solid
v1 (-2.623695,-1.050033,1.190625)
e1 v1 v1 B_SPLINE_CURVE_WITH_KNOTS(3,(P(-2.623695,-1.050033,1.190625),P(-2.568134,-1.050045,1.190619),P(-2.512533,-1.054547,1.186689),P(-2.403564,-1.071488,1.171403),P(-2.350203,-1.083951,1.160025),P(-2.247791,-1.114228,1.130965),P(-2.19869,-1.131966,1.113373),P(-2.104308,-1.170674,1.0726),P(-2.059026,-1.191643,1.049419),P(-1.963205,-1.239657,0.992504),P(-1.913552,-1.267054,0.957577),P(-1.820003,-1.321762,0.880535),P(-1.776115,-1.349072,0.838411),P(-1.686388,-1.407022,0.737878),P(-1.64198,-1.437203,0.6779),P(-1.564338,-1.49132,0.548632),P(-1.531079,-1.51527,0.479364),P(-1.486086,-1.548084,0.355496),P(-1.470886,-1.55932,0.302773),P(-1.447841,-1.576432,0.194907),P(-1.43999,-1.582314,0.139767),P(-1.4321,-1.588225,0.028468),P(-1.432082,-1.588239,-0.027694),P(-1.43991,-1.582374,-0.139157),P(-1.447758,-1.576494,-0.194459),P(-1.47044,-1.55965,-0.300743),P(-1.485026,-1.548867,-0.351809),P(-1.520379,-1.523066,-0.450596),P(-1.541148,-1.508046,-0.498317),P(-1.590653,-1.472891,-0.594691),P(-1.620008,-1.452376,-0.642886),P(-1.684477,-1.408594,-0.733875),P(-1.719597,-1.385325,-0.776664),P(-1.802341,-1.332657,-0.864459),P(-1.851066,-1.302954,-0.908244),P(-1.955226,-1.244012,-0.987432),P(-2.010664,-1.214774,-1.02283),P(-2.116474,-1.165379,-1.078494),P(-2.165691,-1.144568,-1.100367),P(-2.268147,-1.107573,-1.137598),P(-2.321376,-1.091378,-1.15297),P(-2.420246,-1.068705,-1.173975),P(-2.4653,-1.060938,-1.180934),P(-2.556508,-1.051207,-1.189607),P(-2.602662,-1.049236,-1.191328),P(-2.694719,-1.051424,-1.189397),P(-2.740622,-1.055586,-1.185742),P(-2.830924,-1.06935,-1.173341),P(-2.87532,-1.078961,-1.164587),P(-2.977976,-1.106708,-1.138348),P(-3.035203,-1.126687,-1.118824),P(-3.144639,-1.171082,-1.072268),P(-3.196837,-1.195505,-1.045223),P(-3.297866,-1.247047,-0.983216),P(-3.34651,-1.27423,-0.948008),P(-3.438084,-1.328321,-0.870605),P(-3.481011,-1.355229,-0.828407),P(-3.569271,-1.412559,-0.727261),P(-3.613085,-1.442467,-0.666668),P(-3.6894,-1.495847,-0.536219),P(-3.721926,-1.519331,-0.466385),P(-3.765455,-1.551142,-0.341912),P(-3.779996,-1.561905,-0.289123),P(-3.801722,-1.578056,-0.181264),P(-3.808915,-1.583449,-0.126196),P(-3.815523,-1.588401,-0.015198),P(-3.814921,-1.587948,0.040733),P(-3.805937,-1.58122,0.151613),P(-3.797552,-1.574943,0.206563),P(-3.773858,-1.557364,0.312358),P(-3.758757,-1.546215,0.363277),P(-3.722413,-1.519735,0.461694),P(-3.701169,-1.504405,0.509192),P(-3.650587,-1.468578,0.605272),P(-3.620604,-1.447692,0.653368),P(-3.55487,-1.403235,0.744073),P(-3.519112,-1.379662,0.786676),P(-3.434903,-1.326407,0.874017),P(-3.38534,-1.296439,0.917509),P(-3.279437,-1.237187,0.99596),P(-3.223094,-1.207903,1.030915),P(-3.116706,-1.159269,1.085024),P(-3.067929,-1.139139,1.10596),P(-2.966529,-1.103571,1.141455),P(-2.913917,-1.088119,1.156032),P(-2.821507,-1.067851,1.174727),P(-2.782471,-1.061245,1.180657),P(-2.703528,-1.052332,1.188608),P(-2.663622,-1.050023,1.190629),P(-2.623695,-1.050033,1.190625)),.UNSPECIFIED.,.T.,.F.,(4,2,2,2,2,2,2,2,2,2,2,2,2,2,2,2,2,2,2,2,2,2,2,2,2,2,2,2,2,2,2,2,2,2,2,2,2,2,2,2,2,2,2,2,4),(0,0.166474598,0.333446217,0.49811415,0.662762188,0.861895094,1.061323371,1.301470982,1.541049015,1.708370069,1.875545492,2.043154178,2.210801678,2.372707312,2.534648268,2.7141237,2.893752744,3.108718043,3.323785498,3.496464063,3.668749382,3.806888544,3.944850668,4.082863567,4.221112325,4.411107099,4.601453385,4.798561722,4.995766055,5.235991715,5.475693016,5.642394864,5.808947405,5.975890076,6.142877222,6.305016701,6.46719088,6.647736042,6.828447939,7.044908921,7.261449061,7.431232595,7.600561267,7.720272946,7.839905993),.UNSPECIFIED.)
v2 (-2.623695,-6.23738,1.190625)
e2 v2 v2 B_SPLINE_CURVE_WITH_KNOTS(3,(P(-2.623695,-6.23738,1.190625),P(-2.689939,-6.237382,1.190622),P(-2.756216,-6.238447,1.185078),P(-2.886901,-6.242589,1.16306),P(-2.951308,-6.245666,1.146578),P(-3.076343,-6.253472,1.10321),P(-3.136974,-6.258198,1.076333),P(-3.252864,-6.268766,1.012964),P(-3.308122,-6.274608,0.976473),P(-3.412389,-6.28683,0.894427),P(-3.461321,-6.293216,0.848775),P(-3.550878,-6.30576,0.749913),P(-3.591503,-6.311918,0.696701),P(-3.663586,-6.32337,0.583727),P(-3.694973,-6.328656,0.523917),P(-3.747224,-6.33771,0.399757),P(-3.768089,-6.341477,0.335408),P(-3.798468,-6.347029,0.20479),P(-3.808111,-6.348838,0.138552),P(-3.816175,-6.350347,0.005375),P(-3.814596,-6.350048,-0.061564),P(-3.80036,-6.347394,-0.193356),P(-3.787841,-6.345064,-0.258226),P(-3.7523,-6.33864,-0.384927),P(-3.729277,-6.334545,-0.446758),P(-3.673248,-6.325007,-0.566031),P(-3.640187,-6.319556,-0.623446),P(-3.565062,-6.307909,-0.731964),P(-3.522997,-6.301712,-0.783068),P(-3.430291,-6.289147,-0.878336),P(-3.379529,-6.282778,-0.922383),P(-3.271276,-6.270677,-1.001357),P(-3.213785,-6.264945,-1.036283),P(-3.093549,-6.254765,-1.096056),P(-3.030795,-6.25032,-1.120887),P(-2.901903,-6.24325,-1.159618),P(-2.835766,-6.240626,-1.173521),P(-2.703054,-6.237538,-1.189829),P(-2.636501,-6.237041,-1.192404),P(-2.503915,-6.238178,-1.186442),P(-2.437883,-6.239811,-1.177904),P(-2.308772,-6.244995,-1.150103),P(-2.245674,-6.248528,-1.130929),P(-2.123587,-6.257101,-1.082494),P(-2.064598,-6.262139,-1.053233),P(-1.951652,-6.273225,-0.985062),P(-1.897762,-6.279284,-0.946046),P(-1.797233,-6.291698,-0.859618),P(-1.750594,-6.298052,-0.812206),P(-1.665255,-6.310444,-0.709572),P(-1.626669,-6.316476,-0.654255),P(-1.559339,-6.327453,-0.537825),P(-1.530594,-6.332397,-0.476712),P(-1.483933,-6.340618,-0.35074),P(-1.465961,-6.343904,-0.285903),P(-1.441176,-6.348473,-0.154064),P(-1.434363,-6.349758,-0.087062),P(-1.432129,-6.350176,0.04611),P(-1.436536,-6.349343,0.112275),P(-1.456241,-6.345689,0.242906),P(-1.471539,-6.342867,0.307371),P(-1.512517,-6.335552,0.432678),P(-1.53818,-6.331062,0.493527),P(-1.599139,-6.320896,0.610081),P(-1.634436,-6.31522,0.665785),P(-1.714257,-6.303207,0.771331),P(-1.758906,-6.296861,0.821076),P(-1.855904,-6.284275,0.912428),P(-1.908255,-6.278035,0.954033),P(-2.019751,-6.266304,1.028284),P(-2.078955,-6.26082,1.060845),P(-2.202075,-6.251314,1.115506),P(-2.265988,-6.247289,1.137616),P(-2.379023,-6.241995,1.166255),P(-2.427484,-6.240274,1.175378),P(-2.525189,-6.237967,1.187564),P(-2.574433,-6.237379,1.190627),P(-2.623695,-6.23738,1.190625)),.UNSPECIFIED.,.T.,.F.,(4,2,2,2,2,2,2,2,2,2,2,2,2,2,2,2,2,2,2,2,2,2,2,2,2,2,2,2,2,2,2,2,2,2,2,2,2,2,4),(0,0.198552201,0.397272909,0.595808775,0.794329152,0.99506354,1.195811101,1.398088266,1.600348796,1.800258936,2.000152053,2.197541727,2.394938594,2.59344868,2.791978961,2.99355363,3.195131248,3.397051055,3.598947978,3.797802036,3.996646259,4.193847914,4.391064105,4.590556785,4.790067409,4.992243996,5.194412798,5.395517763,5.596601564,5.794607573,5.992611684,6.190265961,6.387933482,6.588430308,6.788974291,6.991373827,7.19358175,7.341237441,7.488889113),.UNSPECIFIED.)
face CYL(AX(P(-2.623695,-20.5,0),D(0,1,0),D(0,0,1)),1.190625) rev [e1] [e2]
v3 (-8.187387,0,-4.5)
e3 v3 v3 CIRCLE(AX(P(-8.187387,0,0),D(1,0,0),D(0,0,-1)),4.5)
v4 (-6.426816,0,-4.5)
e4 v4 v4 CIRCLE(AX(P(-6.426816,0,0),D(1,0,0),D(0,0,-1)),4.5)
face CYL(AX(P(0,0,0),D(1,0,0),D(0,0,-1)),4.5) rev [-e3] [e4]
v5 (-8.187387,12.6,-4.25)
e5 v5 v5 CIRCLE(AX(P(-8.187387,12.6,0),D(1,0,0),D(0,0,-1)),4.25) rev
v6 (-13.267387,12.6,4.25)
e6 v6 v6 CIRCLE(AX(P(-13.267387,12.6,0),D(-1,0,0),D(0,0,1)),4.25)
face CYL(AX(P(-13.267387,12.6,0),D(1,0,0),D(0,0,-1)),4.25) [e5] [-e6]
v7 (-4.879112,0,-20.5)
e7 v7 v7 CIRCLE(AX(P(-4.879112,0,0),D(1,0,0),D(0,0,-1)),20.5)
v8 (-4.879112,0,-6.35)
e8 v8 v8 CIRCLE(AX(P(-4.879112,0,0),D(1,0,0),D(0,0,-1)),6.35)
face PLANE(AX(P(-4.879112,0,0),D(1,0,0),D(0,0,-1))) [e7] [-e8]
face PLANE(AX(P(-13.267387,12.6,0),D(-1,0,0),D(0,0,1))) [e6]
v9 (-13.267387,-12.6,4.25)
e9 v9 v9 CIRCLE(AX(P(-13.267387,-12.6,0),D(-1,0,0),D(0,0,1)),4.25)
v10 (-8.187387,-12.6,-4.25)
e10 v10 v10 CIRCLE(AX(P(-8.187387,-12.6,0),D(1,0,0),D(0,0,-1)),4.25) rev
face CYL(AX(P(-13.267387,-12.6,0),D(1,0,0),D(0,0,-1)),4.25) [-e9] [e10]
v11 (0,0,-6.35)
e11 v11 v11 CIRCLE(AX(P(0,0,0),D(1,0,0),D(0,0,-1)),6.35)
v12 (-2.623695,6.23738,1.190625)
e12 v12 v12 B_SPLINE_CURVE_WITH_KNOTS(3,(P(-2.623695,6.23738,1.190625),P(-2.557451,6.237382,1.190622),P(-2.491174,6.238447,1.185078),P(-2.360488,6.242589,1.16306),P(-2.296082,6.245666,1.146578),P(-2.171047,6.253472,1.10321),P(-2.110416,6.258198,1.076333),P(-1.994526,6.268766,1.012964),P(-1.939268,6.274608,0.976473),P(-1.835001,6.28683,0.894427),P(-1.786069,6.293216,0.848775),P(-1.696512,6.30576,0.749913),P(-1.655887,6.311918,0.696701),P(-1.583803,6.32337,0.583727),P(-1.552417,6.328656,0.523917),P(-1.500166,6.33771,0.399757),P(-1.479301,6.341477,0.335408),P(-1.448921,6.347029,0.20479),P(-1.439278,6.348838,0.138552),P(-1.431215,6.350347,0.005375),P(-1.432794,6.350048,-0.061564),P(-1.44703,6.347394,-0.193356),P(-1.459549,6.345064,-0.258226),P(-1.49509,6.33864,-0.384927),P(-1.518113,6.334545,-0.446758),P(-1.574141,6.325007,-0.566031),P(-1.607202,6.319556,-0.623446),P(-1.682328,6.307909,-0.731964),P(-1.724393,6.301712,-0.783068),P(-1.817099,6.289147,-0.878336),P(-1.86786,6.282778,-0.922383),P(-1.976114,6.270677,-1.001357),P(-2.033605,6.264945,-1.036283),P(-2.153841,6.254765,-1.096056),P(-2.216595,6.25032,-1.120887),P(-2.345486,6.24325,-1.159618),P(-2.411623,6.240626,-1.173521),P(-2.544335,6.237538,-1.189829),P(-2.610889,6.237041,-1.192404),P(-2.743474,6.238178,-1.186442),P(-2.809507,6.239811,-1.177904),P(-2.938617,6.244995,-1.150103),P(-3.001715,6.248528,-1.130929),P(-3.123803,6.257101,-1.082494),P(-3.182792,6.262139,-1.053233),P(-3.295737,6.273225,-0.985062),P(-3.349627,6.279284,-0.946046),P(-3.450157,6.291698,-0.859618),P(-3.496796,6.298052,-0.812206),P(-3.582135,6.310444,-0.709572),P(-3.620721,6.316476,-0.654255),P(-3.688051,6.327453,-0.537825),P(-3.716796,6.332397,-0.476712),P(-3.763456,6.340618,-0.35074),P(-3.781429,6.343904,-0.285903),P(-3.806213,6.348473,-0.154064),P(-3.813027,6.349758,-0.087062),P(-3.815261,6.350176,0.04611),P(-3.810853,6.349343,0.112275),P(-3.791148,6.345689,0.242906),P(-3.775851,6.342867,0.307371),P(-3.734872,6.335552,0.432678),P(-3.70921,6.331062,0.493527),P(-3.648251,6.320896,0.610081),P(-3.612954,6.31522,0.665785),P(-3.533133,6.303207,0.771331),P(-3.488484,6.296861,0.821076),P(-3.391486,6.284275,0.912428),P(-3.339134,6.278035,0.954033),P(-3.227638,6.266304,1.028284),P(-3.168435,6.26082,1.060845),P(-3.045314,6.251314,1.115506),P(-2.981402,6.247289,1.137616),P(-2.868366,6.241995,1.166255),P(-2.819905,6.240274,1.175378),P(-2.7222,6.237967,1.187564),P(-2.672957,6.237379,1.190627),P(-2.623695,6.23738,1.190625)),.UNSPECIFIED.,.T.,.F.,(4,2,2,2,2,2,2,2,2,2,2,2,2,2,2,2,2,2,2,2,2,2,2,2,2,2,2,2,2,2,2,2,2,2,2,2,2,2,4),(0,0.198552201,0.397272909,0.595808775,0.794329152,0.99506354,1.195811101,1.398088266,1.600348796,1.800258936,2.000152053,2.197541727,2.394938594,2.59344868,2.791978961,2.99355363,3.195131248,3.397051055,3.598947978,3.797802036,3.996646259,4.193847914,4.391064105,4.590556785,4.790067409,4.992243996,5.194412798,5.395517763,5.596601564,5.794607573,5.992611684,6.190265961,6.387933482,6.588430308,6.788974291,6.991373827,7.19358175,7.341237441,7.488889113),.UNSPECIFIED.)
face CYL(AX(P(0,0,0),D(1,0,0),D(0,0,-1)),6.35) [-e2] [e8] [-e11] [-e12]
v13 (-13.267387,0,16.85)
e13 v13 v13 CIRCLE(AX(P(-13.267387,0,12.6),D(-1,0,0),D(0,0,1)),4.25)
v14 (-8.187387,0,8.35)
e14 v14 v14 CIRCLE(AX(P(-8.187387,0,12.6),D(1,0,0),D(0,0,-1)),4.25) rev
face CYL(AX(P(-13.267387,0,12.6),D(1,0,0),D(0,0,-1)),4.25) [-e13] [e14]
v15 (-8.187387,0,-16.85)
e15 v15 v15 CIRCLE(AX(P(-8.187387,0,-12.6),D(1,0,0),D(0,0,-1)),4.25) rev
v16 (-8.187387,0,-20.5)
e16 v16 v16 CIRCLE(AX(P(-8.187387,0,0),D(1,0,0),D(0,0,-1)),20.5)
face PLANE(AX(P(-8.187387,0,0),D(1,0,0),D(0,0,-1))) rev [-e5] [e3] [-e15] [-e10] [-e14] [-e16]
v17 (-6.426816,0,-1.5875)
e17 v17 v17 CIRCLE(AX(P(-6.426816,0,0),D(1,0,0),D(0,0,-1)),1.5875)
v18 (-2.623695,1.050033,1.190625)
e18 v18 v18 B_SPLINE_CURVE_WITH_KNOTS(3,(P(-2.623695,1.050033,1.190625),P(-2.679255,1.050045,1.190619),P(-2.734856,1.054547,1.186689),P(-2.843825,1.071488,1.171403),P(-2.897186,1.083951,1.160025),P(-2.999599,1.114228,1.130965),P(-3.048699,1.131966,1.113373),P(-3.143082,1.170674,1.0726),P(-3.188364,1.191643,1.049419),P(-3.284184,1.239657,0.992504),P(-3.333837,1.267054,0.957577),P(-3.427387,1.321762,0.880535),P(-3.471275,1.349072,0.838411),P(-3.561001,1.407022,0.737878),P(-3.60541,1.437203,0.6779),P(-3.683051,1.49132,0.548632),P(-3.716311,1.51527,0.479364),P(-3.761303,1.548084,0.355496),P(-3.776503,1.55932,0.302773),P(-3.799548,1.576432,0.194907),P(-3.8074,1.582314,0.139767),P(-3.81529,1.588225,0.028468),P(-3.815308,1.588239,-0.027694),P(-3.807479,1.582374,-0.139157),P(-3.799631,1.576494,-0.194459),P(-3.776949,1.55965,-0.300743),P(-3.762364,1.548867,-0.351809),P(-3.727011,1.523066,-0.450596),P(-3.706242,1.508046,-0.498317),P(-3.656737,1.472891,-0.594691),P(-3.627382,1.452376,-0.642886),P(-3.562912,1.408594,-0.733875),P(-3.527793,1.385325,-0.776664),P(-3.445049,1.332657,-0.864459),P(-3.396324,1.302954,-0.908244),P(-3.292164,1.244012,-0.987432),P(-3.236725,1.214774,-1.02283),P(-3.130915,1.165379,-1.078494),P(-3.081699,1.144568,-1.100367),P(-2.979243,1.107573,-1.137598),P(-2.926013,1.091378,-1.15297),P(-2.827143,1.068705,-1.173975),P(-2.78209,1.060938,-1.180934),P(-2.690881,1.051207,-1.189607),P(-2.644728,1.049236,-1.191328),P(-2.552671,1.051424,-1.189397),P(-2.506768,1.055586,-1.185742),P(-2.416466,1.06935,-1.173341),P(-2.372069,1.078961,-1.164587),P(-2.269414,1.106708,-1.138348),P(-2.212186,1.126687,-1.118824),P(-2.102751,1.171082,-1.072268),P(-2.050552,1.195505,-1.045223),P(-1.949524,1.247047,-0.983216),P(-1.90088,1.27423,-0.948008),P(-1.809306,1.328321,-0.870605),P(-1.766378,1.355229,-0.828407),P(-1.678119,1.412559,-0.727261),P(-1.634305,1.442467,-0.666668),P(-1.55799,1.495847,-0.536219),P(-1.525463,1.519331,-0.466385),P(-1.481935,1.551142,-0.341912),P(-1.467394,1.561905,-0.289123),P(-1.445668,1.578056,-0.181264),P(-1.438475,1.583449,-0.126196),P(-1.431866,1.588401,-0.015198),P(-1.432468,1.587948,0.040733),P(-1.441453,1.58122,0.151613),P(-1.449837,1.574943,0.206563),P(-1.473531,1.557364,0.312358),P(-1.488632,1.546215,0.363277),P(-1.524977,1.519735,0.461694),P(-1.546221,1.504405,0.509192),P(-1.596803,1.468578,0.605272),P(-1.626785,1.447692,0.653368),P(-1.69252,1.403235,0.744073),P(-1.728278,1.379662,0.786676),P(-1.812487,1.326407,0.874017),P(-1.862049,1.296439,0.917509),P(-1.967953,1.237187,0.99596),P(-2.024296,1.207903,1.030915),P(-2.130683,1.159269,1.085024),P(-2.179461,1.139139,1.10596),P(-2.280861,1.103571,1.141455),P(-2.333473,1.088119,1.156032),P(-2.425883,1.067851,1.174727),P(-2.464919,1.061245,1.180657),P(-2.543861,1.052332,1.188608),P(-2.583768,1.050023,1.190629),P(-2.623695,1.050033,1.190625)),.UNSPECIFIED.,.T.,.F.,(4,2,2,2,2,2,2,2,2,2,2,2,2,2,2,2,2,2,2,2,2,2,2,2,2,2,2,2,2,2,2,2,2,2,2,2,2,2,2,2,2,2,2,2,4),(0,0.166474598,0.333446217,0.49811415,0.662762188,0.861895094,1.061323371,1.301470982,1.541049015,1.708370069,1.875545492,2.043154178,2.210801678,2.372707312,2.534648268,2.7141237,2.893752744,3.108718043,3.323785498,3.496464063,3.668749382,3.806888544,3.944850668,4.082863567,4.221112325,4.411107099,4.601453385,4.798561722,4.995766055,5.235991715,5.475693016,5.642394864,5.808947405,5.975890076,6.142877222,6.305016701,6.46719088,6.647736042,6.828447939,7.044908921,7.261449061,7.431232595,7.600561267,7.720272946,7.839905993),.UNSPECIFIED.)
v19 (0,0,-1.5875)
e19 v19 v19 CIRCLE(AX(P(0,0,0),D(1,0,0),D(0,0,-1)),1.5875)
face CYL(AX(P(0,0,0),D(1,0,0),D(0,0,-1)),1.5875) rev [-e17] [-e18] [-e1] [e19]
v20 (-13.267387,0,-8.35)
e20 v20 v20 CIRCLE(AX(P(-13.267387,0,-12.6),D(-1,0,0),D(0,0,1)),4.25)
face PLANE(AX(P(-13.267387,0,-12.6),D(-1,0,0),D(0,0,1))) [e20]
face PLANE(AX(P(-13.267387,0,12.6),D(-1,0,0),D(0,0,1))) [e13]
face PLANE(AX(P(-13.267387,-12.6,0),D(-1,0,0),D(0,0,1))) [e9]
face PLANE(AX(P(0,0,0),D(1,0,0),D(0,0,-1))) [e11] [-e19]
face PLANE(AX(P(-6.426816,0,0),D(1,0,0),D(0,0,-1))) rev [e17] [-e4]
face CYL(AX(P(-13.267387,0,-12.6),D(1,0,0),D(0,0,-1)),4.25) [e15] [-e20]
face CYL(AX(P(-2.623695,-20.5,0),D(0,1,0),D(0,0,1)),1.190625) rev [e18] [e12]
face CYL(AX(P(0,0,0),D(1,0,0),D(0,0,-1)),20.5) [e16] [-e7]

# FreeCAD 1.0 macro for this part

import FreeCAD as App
import Part
import Sketcher
from FreeCAD import Vector
Q = App.Units.Quantity

doc = App.newDocument("Part")
params = doc.addObject("Spreadsheet::Sheet", "Params")
for row, (alias, value) in enumerate([
    ("sketch1_height", "0.1875 in"),
    ("revolution_angle", "360 deg"),
    ("pad1_length", "0.2 in"),
    ("sketch3_diameter", "0.09375 in"),
], start=1):
    params.set(f"A{row}", alias)
    params.set(f"B{row}", "=" + value)
    params.setAlias(f"B{row}", alias)

body = doc.addObject("PartDesign::Body", "Body")

sketch1 = body.newObject("Sketcher::SketchObject", "Sketch")
sketch1.AttachmentSupport = (doc.getObject("XY_Plane"), [""])
sketch1.MapMode = "FlatFace"
sketch1.addGeometry(Part.LineSegment(Vector(0, 1.6, 0), Vector(0, 6.3, 0)), False)
sketch1.addGeometry(Part.LineSegment(Vector(0, 6.3, 0), Vector(-4.9, 6.3, 0)), False)
sketch1.addGeometry(Part.LineSegment(Vector(-4.9, 6.3, 0), Vector(-4.9, 20.5, 0)), False)
sketch1.addGeometry(Part.LineSegment(Vector(-4.9, 20.5, 0), Vector(-8.2, 20.5, 0)), False)
sketch1.addGeometry(Part.LineSegment(Vector(-8.2, 20.5, 0), Vector(-8.2, 4.5, 0)), False)
sketch1.addGeometry(Part.LineSegment(Vector(-8.2, 4.5, 0), Vector(-6.4, 4.5, 0)), False)
sketch1.addGeometry(Part.LineSegment(Vector(-6.4, 4.5, 0), Vector(-6.4, 1.6, 0)), False)
sketch1.addGeometry(Part.LineSegment(Vector(-6.4, 1.6, 0), Vector(0, 1.6, 0)), False)
sketch1.addConstraint(Sketcher.Constraint("Coincident", 0, 2, 1, 1))
sketch1.addConstraint(Sketcher.Constraint("Coincident", 1, 2, 2, 1))
sketch1.addConstraint(Sketcher.Constraint("Coincident", 2, 2, 3, 1))
sketch1.addConstraint(Sketcher.Constraint("Coincident", 3, 2, 4, 1))
sketch1.addConstraint(Sketcher.Constraint("Coincident", 4, 2, 5, 1))
sketch1.addConstraint(Sketcher.Constraint("Coincident", 5, 2, 6, 1))
sketch1.addConstraint(Sketcher.Constraint("Coincident", 6, 2, 7, 1))
sketch1.addConstraint(Sketcher.Constraint("Coincident", 7, 2, 0, 1))
sketch1.addConstraint(Sketcher.Constraint("Vertical", 0))
sketch1.addConstraint(Sketcher.Constraint("Horizontal", 1))
sketch1.addConstraint(Sketcher.Constraint("Vertical", 2))
sketch1.addConstraint(Sketcher.Constraint("Horizontal", 3))
sketch1.addConstraint(Sketcher.Constraint("Vertical", 4))
sketch1.addConstraint(Sketcher.Constraint("Horizontal", 5))
sketch1.addConstraint(Sketcher.Constraint("Vertical", 6))
sketch1.addConstraint(Sketcher.Constraint("Horizontal", 7))
sketch1.addConstraint(Sketcher.Constraint("PointOnObject", 0, 2, -2))
sketch1.addConstraint(Sketcher.Constraint("DistanceY", 0, 1, 0, 2, Q("0.1875 in")))
sketch1.addConstraint(Sketcher.Constraint("DistanceY", -1, 1, 0, 2, Q("0.25 in")))
sketch1.addConstraint(Sketcher.Constraint("DistanceY", 2, 1, 2, 2, 14.15))
sketch1.addConstraint(Sketcher.Constraint("DistanceY", 4, 2, 4, 1, 16.0))
sketch1.addConstraint(Sketcher.Constraint("DistanceX", 1, 2, 1, 1, 4.879112))
sketch1.addConstraint(Sketcher.Constraint("DistanceX", 5, 1, 5, 2, 1.760572))
sketch1.addConstraint(Sketcher.Constraint("DistanceX", 3, 2, 3, 1, 3.308276))
sketch1.setExpression("Constraints[17]", "Params.sketch1_height")
revolution = body.newObject("PartDesign::Revolution", "Revolution")
revolution.Profile = sketch1
revolution.ReferenceAxis = (sketch1, ["H_Axis"])
revolution.setExpression("Angle", "Params.revolution_angle")

sketch2 = body.newObject("Sketcher::SketchObject", "Sketch001")
sketch2.AttachmentSupport = (doc.getObject("YZ_Plane"), [""])
sketch2.MapMode = "FlatFace"
sketch2.AttachmentOffset = App.Placement(Vector(0, 0, -8.187387), App.Rotation())
sketch2.addGeometry(Part.Circle(Vector(12.6, 0, 0), Vector(0, 0, 1), 4.2), False)
sketch2.addGeometry(Part.Circle(Vector(0, 12.6, 0), Vector(0, 0, 1), 4.2), False)
sketch2.addGeometry(Part.Circle(Vector(-12.6, 0, 0), Vector(0, 0, 1), 4.2), False)
sketch2.addGeometry(Part.Circle(Vector(0, -12.6, 0), Vector(0, 0, 1), 4.2), False)
sketch2.addConstraint(Sketcher.Constraint("Equal", 0, 1))
sketch2.addConstraint(Sketcher.Constraint("Equal", 1, 2))
sketch2.addConstraint(Sketcher.Constraint("Equal", 2, 3))
sketch2.addConstraint(Sketcher.Constraint("Symmetric", 0, 3, 2, 3, -1, 1))
sketch2.addConstraint(Sketcher.Constraint("Symmetric", 1, 3, 3, 3, -1, 1))
sketch2.addConstraint(Sketcher.Constraint("PointOnObject", 0, 3, -1))
sketch2.addConstraint(Sketcher.Constraint("PointOnObject", 1, 3, -2))
sketch2.addConstraint(Sketcher.Constraint("Diameter", 0, 8.5))
sketch2.addConstraint(Sketcher.Constraint("DistanceX", -1, 1, 0, 3, 12.6))
sketch2.addConstraint(Sketcher.Constraint("DistanceY", -1, 1, 1, 3, 12.6))
pad1 = body.newObject("PartDesign::Pad", "Pad")
pad1.Profile = sketch2
pad1.setExpression("Length", "Params.pad1_length")
pad1.Reversed = True

sketch3 = body.newObject("Sketcher::SketchObject", "Sketch002")
sketch3.AttachmentSupport = (doc.getObject("XZ_Plane"), [""])
sketch3.MapMode = "FlatFace"
sketch3.addGeometry(Part.Circle(Vector(-2.6, 0, 0), Vector(0, 0, 1), 1.2), False)
sketch3.addConstraint(Sketcher.Constraint("PointOnObject", 0, 3, -1))
sketch3.addConstraint(Sketcher.Constraint("Diameter", 0, Q("0.09375 in")))
sketch3.addConstraint(Sketcher.Constraint("DistanceX", 0, 3, -1, 1, 2.623695))
sketch3.setExpression("Constraints[1]", "Params.sketch3_diameter")
pocket1 = body.newObject("PartDesign::Pocket", "Pocket")
pocket1.Profile = sketch3
pocket1.Type = "ThroughAll"
pocket1.Midplane = True

doc.recompute()
